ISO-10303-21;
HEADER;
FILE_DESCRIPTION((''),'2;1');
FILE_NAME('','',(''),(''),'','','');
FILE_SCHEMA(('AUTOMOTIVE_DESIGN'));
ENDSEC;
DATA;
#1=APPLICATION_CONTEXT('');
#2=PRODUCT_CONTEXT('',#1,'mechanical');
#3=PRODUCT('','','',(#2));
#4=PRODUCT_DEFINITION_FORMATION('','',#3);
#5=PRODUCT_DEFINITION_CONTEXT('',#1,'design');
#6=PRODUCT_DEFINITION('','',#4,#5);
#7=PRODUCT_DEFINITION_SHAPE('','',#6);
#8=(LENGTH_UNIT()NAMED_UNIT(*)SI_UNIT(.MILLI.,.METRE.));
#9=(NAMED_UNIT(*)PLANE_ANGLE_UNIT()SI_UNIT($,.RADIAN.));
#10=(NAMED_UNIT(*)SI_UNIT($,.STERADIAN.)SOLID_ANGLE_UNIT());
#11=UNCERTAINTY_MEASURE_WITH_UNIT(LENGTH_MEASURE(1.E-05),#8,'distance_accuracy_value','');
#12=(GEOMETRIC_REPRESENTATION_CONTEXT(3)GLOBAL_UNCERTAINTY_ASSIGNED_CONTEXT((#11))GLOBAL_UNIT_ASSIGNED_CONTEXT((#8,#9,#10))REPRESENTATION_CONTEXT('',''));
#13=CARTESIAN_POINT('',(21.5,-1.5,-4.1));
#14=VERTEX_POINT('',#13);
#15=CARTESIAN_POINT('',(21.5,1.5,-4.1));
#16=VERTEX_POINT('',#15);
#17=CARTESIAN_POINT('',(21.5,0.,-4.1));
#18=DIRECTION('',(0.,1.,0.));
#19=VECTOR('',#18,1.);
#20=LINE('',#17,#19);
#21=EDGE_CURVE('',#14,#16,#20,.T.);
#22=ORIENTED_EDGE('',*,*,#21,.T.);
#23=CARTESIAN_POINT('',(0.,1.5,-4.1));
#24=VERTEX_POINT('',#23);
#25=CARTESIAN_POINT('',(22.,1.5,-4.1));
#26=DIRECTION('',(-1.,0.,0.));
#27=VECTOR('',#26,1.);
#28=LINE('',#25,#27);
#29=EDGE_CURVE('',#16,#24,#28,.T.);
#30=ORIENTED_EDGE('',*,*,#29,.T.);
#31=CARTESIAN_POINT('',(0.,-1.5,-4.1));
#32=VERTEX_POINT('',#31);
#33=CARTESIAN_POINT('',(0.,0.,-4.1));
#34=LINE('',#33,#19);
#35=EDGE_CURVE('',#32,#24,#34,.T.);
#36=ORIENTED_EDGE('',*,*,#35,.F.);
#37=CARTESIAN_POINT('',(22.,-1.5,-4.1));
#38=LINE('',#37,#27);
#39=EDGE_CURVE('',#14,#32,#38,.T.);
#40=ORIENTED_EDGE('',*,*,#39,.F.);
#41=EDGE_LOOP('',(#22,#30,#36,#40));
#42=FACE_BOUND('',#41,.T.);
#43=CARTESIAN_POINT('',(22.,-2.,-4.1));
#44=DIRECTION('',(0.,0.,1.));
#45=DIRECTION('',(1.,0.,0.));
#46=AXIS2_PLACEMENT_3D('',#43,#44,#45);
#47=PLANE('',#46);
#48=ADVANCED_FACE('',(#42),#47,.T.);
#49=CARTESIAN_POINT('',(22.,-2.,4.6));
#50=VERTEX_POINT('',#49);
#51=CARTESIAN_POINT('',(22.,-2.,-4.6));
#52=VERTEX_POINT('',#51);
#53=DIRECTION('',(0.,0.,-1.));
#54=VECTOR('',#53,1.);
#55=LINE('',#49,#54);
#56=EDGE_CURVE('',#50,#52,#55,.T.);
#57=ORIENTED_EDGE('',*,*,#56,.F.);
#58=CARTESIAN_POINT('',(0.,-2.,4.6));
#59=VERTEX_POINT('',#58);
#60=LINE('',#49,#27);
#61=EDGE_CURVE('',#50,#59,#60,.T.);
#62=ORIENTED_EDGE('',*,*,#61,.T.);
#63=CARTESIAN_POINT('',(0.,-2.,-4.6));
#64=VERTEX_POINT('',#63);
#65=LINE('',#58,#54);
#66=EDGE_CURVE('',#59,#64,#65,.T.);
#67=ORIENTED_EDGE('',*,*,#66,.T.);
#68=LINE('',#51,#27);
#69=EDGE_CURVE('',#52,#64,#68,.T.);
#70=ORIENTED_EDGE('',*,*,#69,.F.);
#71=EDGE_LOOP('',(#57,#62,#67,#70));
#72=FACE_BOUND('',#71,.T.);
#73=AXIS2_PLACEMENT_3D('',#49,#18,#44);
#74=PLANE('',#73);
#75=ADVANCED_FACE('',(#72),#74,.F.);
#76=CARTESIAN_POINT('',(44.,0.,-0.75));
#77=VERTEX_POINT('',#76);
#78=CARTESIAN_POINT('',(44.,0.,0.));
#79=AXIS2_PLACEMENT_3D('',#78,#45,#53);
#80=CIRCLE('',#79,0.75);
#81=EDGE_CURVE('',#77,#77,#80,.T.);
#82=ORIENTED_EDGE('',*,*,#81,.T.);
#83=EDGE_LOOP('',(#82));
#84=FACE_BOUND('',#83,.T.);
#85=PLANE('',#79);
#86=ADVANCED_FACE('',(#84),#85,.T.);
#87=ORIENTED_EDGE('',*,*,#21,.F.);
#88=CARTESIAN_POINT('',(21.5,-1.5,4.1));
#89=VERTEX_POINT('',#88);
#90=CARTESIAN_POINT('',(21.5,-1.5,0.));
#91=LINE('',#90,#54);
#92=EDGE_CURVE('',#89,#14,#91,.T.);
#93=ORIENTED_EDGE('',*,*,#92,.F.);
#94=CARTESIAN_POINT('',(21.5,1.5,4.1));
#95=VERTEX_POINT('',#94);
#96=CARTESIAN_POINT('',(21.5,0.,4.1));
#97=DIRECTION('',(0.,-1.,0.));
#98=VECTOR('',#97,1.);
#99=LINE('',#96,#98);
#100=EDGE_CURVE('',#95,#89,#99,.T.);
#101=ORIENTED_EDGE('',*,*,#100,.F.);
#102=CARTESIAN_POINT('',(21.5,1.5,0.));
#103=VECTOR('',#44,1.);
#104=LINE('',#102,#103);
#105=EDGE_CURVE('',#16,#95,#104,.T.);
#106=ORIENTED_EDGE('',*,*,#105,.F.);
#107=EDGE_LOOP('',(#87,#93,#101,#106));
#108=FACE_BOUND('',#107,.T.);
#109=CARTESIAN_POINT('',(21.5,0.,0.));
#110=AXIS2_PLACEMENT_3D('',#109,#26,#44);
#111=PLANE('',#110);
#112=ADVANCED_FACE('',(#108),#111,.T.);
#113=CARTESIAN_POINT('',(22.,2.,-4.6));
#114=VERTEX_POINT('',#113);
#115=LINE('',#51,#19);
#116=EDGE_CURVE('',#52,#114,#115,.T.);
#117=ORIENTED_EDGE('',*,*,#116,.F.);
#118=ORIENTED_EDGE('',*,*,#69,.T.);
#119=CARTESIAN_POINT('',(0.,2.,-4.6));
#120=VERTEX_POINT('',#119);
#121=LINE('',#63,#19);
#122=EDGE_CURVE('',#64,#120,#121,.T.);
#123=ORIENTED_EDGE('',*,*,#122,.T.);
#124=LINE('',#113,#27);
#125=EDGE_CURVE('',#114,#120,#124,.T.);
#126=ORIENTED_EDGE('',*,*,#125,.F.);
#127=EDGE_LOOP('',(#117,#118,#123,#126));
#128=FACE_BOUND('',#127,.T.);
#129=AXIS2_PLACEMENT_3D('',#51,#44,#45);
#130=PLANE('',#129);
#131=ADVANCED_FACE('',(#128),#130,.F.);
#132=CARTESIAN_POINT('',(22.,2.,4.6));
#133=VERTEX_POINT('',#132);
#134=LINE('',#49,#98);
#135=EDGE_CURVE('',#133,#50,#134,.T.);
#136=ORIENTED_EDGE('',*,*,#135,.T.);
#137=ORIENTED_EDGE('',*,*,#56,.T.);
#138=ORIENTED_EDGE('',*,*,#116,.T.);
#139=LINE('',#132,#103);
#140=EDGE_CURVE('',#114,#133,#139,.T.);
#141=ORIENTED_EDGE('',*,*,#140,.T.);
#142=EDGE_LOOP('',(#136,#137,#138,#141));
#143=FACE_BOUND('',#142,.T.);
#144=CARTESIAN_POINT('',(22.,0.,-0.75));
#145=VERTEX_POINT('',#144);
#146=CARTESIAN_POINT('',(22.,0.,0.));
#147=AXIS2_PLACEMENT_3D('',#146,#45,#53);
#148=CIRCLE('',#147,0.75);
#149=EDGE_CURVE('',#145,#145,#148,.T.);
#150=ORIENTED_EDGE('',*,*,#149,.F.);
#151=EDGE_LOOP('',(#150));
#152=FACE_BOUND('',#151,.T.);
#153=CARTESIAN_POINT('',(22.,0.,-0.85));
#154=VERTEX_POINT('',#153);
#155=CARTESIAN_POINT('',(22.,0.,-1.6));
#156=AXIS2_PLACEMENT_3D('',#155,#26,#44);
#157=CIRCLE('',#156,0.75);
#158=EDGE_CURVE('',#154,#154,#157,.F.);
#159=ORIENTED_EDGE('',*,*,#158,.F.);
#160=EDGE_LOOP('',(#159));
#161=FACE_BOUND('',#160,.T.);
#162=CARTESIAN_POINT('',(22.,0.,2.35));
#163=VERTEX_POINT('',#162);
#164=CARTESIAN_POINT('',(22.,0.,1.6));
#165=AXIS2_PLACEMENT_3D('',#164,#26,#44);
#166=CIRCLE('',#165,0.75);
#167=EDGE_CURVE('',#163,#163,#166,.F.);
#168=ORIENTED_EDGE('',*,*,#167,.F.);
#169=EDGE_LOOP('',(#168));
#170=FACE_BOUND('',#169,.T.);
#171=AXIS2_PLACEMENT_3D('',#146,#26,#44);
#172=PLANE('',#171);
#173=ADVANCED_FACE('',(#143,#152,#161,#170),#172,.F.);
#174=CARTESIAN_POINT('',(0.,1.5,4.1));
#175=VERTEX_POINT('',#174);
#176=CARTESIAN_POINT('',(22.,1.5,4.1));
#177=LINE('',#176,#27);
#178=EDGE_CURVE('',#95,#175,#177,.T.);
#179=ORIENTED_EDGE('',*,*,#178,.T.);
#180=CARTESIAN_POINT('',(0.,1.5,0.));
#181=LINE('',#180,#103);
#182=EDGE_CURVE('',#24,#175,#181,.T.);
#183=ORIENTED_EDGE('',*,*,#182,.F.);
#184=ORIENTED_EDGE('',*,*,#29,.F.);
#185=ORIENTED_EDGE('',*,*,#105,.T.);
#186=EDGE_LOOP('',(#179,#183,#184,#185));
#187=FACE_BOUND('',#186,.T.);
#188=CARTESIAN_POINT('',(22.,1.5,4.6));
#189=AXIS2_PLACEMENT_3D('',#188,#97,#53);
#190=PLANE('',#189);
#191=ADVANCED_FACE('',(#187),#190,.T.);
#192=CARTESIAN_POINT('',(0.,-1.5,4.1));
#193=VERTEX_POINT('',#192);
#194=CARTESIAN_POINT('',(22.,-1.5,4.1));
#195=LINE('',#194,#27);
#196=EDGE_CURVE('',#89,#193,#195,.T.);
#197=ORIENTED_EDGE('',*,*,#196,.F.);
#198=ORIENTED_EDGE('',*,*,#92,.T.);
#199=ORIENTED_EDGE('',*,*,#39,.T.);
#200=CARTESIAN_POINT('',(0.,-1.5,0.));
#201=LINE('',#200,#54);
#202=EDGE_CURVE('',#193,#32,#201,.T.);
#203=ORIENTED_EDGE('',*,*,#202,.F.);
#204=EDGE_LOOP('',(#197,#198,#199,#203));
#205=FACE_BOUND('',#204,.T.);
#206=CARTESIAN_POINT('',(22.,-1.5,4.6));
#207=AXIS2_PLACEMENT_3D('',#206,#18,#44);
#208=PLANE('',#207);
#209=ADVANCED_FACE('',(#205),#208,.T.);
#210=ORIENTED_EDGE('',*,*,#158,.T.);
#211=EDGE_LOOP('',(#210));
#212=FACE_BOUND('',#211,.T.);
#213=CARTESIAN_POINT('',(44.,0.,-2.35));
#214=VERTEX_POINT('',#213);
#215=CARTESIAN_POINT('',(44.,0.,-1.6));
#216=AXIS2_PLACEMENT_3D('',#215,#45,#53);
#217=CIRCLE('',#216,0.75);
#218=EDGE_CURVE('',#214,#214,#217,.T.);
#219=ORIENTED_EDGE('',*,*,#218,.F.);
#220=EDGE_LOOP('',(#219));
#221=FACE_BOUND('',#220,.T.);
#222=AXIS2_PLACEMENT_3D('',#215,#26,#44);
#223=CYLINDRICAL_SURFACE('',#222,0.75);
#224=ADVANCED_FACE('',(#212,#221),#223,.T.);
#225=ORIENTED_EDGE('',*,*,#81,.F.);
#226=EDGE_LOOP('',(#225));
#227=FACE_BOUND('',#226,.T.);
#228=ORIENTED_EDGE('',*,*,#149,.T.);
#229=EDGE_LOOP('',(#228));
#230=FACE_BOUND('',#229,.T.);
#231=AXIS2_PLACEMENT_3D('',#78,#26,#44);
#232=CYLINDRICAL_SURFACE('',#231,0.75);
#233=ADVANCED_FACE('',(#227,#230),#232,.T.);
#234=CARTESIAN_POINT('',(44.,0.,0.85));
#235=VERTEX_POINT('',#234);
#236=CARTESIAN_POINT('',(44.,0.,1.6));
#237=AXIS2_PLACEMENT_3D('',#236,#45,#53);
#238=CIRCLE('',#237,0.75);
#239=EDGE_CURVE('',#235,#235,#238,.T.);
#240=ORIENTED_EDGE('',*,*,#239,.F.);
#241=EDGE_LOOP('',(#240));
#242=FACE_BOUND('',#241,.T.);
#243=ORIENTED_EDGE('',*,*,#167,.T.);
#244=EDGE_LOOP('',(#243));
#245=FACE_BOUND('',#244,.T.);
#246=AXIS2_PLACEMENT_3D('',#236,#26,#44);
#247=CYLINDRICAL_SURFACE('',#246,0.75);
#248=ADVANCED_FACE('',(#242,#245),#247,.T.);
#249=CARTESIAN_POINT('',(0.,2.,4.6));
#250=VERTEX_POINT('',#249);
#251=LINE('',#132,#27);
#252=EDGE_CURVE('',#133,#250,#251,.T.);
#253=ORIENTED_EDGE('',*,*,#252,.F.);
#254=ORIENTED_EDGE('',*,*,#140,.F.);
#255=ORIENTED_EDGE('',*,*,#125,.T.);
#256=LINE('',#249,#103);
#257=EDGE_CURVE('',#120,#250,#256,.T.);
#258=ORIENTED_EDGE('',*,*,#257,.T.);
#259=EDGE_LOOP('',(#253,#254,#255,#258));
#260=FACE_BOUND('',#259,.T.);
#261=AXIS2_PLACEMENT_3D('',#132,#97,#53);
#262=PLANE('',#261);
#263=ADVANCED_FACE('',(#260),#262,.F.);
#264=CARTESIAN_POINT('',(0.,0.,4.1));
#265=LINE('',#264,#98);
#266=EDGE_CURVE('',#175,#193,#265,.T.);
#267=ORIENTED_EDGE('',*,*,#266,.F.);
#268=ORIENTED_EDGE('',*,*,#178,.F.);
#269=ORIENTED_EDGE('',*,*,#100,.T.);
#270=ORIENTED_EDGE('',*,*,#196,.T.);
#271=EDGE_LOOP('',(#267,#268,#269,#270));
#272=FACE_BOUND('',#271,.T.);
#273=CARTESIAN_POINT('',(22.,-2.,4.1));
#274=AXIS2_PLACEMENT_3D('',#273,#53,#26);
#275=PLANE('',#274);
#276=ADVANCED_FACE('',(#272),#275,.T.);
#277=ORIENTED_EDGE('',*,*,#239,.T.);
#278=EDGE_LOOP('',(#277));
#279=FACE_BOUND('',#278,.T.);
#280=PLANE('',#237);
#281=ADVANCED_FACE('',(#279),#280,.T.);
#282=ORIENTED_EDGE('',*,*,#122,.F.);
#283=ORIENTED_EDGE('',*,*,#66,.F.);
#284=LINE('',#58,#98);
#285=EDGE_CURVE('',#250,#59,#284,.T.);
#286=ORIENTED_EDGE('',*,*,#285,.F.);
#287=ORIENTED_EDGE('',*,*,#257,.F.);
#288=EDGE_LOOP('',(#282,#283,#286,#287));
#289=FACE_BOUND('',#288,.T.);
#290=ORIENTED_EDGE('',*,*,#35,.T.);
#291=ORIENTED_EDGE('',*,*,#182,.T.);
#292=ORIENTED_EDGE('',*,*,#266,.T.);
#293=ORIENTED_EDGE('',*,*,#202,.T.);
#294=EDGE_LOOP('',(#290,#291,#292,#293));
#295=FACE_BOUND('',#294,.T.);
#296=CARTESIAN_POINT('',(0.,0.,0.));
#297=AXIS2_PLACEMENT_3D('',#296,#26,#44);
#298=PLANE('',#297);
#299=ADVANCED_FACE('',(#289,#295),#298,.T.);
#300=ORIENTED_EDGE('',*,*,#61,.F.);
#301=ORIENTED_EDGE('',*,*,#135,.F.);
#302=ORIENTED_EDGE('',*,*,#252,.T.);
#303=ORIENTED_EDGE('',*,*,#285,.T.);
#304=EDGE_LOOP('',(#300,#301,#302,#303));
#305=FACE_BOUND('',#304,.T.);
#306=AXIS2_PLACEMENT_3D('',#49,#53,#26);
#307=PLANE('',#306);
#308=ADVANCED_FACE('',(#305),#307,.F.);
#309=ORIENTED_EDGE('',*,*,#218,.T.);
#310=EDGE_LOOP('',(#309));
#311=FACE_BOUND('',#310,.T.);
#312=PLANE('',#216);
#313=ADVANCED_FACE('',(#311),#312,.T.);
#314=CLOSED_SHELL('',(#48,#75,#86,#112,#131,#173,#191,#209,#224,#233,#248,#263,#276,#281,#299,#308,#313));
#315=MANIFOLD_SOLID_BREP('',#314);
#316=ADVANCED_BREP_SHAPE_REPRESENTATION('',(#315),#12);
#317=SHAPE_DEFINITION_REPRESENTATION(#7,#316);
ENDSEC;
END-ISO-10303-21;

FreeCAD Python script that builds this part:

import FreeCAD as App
import Part
import Sketcher


def faces_at(feature, points):
    """Names of the faces that lie closest to the given points."""
    faces = feature.Shape.Faces
    near = lambda p: min(range(len(faces)), key=lambda i: faces[i].distToShape(Part.Vertex(*p))[0])
    return sorted({f"Face{near(p) + 1}" for p in points})

doc = App.newDocument("Part")
body = doc.addObject("PartDesign::Body", "Body")

# Sketch on YZ plane
sketch1 = doc.addObject("Sketcher::SketchObject", "Sketch")
body.addObject(sketch1)
sketch1.AttachmentSupport = (doc.YZ_Plane, [""])
sketch1.MapMode = "FlatFace"
sketch1.addGeometry([
    Part.LineSegment(App.Vector(2, 4.6, 0), App.Vector(-2, 4.6, 0)),
    Part.LineSegment(App.Vector(-2, 4.6, 0), App.Vector(-2, -4.6, 0)),
    Part.LineSegment(App.Vector(-2, -4.6, 0), App.Vector(2, -4.6, 0)),
    Part.LineSegment(App.Vector(2, -4.6, 0), App.Vector(2, 4.6, 0)),
], False)
sketch1.addConstraint([
    Sketcher.Constraint("Coincident", 0, 2, 1, 1),
    Sketcher.Constraint("Coincident", 1, 2, 2, 1),
    Sketcher.Constraint("Coincident", 2, 2, 3, 1),
    Sketcher.Constraint("Coincident", 3, 2, 0, 1),
    Sketcher.Constraint("Horizontal", 0),
    Sketcher.Constraint("Vertical", 1),
    Sketcher.Constraint("Horizontal", 2),
    Sketcher.Constraint("Vertical", 3),
    Sketcher.Constraint("Symmetric", 0, 2, 2, 2, -1, 1),
    Sketcher.Constraint("DistanceX", 0, 2, 0, 1, 4.0),
    Sketcher.Constraint("DistanceY", 1, 2, 1, 1, 9.2),
])
pad1 = doc.addObject("PartDesign::Pad", "Pad")
body.addObject(pad1)
pad1.Profile = sketch1
pad1.Length = 22
doc.recompute()

thickness = doc.addObject("PartDesign::Thickness", "Thickness")
body.addObject(thickness)
thickness.Base = (pad1, faces_at(pad1, [(0, 0, 0)]))
thickness.Value = 0.5
thickness.Reversed = True
thickness.Join = "Intersection"

# Sketch on YZ plane
sketch2 = doc.addObject("Sketcher::SketchObject", "Sketch001")
body.addObject(sketch2)
sketch2.AttachmentSupport = (doc.YZ_Plane, [""])
sketch2.MapMode = "FlatFace"
sketch2.AttachmentOffset = App.Placement(App.Vector(0, 0, 22), App.Rotation())
sketch2.addGeometry([
    Part.Circle(App.Vector(0, 0, 0), App.Vector(0, 0, 1), 0.75),
    Part.Circle(App.Vector(0, 1.6, 0), App.Vector(0, 0, 1), 0.75),
    Part.Circle(App.Vector(0, -1.6, 0), App.Vector(0, 0, 1), 0.75),
], False)
sketch2.addConstraint([
    Sketcher.Constraint("Coincident", 0, 3, -1, 1),
    Sketcher.Constraint("Equal", 0, 1),
    Sketcher.Constraint("Equal", 1, 2),
    Sketcher.Constraint("Symmetric", 1, 3, 2, 3, -1, 1),
    Sketcher.Constraint("PointOnObject", 1, 3, -2),
    Sketcher.Constraint("Diameter", 0, 1.5),
    Sketcher.Constraint("DistanceY", -1, 1, 1, 3, 1.6),
])
pad2 = doc.addObject("PartDesign::Pad", "Pad001")
body.addObject(pad2)
pad2.Profile = sketch2
pad2.Length = 22

doc.recompute()
